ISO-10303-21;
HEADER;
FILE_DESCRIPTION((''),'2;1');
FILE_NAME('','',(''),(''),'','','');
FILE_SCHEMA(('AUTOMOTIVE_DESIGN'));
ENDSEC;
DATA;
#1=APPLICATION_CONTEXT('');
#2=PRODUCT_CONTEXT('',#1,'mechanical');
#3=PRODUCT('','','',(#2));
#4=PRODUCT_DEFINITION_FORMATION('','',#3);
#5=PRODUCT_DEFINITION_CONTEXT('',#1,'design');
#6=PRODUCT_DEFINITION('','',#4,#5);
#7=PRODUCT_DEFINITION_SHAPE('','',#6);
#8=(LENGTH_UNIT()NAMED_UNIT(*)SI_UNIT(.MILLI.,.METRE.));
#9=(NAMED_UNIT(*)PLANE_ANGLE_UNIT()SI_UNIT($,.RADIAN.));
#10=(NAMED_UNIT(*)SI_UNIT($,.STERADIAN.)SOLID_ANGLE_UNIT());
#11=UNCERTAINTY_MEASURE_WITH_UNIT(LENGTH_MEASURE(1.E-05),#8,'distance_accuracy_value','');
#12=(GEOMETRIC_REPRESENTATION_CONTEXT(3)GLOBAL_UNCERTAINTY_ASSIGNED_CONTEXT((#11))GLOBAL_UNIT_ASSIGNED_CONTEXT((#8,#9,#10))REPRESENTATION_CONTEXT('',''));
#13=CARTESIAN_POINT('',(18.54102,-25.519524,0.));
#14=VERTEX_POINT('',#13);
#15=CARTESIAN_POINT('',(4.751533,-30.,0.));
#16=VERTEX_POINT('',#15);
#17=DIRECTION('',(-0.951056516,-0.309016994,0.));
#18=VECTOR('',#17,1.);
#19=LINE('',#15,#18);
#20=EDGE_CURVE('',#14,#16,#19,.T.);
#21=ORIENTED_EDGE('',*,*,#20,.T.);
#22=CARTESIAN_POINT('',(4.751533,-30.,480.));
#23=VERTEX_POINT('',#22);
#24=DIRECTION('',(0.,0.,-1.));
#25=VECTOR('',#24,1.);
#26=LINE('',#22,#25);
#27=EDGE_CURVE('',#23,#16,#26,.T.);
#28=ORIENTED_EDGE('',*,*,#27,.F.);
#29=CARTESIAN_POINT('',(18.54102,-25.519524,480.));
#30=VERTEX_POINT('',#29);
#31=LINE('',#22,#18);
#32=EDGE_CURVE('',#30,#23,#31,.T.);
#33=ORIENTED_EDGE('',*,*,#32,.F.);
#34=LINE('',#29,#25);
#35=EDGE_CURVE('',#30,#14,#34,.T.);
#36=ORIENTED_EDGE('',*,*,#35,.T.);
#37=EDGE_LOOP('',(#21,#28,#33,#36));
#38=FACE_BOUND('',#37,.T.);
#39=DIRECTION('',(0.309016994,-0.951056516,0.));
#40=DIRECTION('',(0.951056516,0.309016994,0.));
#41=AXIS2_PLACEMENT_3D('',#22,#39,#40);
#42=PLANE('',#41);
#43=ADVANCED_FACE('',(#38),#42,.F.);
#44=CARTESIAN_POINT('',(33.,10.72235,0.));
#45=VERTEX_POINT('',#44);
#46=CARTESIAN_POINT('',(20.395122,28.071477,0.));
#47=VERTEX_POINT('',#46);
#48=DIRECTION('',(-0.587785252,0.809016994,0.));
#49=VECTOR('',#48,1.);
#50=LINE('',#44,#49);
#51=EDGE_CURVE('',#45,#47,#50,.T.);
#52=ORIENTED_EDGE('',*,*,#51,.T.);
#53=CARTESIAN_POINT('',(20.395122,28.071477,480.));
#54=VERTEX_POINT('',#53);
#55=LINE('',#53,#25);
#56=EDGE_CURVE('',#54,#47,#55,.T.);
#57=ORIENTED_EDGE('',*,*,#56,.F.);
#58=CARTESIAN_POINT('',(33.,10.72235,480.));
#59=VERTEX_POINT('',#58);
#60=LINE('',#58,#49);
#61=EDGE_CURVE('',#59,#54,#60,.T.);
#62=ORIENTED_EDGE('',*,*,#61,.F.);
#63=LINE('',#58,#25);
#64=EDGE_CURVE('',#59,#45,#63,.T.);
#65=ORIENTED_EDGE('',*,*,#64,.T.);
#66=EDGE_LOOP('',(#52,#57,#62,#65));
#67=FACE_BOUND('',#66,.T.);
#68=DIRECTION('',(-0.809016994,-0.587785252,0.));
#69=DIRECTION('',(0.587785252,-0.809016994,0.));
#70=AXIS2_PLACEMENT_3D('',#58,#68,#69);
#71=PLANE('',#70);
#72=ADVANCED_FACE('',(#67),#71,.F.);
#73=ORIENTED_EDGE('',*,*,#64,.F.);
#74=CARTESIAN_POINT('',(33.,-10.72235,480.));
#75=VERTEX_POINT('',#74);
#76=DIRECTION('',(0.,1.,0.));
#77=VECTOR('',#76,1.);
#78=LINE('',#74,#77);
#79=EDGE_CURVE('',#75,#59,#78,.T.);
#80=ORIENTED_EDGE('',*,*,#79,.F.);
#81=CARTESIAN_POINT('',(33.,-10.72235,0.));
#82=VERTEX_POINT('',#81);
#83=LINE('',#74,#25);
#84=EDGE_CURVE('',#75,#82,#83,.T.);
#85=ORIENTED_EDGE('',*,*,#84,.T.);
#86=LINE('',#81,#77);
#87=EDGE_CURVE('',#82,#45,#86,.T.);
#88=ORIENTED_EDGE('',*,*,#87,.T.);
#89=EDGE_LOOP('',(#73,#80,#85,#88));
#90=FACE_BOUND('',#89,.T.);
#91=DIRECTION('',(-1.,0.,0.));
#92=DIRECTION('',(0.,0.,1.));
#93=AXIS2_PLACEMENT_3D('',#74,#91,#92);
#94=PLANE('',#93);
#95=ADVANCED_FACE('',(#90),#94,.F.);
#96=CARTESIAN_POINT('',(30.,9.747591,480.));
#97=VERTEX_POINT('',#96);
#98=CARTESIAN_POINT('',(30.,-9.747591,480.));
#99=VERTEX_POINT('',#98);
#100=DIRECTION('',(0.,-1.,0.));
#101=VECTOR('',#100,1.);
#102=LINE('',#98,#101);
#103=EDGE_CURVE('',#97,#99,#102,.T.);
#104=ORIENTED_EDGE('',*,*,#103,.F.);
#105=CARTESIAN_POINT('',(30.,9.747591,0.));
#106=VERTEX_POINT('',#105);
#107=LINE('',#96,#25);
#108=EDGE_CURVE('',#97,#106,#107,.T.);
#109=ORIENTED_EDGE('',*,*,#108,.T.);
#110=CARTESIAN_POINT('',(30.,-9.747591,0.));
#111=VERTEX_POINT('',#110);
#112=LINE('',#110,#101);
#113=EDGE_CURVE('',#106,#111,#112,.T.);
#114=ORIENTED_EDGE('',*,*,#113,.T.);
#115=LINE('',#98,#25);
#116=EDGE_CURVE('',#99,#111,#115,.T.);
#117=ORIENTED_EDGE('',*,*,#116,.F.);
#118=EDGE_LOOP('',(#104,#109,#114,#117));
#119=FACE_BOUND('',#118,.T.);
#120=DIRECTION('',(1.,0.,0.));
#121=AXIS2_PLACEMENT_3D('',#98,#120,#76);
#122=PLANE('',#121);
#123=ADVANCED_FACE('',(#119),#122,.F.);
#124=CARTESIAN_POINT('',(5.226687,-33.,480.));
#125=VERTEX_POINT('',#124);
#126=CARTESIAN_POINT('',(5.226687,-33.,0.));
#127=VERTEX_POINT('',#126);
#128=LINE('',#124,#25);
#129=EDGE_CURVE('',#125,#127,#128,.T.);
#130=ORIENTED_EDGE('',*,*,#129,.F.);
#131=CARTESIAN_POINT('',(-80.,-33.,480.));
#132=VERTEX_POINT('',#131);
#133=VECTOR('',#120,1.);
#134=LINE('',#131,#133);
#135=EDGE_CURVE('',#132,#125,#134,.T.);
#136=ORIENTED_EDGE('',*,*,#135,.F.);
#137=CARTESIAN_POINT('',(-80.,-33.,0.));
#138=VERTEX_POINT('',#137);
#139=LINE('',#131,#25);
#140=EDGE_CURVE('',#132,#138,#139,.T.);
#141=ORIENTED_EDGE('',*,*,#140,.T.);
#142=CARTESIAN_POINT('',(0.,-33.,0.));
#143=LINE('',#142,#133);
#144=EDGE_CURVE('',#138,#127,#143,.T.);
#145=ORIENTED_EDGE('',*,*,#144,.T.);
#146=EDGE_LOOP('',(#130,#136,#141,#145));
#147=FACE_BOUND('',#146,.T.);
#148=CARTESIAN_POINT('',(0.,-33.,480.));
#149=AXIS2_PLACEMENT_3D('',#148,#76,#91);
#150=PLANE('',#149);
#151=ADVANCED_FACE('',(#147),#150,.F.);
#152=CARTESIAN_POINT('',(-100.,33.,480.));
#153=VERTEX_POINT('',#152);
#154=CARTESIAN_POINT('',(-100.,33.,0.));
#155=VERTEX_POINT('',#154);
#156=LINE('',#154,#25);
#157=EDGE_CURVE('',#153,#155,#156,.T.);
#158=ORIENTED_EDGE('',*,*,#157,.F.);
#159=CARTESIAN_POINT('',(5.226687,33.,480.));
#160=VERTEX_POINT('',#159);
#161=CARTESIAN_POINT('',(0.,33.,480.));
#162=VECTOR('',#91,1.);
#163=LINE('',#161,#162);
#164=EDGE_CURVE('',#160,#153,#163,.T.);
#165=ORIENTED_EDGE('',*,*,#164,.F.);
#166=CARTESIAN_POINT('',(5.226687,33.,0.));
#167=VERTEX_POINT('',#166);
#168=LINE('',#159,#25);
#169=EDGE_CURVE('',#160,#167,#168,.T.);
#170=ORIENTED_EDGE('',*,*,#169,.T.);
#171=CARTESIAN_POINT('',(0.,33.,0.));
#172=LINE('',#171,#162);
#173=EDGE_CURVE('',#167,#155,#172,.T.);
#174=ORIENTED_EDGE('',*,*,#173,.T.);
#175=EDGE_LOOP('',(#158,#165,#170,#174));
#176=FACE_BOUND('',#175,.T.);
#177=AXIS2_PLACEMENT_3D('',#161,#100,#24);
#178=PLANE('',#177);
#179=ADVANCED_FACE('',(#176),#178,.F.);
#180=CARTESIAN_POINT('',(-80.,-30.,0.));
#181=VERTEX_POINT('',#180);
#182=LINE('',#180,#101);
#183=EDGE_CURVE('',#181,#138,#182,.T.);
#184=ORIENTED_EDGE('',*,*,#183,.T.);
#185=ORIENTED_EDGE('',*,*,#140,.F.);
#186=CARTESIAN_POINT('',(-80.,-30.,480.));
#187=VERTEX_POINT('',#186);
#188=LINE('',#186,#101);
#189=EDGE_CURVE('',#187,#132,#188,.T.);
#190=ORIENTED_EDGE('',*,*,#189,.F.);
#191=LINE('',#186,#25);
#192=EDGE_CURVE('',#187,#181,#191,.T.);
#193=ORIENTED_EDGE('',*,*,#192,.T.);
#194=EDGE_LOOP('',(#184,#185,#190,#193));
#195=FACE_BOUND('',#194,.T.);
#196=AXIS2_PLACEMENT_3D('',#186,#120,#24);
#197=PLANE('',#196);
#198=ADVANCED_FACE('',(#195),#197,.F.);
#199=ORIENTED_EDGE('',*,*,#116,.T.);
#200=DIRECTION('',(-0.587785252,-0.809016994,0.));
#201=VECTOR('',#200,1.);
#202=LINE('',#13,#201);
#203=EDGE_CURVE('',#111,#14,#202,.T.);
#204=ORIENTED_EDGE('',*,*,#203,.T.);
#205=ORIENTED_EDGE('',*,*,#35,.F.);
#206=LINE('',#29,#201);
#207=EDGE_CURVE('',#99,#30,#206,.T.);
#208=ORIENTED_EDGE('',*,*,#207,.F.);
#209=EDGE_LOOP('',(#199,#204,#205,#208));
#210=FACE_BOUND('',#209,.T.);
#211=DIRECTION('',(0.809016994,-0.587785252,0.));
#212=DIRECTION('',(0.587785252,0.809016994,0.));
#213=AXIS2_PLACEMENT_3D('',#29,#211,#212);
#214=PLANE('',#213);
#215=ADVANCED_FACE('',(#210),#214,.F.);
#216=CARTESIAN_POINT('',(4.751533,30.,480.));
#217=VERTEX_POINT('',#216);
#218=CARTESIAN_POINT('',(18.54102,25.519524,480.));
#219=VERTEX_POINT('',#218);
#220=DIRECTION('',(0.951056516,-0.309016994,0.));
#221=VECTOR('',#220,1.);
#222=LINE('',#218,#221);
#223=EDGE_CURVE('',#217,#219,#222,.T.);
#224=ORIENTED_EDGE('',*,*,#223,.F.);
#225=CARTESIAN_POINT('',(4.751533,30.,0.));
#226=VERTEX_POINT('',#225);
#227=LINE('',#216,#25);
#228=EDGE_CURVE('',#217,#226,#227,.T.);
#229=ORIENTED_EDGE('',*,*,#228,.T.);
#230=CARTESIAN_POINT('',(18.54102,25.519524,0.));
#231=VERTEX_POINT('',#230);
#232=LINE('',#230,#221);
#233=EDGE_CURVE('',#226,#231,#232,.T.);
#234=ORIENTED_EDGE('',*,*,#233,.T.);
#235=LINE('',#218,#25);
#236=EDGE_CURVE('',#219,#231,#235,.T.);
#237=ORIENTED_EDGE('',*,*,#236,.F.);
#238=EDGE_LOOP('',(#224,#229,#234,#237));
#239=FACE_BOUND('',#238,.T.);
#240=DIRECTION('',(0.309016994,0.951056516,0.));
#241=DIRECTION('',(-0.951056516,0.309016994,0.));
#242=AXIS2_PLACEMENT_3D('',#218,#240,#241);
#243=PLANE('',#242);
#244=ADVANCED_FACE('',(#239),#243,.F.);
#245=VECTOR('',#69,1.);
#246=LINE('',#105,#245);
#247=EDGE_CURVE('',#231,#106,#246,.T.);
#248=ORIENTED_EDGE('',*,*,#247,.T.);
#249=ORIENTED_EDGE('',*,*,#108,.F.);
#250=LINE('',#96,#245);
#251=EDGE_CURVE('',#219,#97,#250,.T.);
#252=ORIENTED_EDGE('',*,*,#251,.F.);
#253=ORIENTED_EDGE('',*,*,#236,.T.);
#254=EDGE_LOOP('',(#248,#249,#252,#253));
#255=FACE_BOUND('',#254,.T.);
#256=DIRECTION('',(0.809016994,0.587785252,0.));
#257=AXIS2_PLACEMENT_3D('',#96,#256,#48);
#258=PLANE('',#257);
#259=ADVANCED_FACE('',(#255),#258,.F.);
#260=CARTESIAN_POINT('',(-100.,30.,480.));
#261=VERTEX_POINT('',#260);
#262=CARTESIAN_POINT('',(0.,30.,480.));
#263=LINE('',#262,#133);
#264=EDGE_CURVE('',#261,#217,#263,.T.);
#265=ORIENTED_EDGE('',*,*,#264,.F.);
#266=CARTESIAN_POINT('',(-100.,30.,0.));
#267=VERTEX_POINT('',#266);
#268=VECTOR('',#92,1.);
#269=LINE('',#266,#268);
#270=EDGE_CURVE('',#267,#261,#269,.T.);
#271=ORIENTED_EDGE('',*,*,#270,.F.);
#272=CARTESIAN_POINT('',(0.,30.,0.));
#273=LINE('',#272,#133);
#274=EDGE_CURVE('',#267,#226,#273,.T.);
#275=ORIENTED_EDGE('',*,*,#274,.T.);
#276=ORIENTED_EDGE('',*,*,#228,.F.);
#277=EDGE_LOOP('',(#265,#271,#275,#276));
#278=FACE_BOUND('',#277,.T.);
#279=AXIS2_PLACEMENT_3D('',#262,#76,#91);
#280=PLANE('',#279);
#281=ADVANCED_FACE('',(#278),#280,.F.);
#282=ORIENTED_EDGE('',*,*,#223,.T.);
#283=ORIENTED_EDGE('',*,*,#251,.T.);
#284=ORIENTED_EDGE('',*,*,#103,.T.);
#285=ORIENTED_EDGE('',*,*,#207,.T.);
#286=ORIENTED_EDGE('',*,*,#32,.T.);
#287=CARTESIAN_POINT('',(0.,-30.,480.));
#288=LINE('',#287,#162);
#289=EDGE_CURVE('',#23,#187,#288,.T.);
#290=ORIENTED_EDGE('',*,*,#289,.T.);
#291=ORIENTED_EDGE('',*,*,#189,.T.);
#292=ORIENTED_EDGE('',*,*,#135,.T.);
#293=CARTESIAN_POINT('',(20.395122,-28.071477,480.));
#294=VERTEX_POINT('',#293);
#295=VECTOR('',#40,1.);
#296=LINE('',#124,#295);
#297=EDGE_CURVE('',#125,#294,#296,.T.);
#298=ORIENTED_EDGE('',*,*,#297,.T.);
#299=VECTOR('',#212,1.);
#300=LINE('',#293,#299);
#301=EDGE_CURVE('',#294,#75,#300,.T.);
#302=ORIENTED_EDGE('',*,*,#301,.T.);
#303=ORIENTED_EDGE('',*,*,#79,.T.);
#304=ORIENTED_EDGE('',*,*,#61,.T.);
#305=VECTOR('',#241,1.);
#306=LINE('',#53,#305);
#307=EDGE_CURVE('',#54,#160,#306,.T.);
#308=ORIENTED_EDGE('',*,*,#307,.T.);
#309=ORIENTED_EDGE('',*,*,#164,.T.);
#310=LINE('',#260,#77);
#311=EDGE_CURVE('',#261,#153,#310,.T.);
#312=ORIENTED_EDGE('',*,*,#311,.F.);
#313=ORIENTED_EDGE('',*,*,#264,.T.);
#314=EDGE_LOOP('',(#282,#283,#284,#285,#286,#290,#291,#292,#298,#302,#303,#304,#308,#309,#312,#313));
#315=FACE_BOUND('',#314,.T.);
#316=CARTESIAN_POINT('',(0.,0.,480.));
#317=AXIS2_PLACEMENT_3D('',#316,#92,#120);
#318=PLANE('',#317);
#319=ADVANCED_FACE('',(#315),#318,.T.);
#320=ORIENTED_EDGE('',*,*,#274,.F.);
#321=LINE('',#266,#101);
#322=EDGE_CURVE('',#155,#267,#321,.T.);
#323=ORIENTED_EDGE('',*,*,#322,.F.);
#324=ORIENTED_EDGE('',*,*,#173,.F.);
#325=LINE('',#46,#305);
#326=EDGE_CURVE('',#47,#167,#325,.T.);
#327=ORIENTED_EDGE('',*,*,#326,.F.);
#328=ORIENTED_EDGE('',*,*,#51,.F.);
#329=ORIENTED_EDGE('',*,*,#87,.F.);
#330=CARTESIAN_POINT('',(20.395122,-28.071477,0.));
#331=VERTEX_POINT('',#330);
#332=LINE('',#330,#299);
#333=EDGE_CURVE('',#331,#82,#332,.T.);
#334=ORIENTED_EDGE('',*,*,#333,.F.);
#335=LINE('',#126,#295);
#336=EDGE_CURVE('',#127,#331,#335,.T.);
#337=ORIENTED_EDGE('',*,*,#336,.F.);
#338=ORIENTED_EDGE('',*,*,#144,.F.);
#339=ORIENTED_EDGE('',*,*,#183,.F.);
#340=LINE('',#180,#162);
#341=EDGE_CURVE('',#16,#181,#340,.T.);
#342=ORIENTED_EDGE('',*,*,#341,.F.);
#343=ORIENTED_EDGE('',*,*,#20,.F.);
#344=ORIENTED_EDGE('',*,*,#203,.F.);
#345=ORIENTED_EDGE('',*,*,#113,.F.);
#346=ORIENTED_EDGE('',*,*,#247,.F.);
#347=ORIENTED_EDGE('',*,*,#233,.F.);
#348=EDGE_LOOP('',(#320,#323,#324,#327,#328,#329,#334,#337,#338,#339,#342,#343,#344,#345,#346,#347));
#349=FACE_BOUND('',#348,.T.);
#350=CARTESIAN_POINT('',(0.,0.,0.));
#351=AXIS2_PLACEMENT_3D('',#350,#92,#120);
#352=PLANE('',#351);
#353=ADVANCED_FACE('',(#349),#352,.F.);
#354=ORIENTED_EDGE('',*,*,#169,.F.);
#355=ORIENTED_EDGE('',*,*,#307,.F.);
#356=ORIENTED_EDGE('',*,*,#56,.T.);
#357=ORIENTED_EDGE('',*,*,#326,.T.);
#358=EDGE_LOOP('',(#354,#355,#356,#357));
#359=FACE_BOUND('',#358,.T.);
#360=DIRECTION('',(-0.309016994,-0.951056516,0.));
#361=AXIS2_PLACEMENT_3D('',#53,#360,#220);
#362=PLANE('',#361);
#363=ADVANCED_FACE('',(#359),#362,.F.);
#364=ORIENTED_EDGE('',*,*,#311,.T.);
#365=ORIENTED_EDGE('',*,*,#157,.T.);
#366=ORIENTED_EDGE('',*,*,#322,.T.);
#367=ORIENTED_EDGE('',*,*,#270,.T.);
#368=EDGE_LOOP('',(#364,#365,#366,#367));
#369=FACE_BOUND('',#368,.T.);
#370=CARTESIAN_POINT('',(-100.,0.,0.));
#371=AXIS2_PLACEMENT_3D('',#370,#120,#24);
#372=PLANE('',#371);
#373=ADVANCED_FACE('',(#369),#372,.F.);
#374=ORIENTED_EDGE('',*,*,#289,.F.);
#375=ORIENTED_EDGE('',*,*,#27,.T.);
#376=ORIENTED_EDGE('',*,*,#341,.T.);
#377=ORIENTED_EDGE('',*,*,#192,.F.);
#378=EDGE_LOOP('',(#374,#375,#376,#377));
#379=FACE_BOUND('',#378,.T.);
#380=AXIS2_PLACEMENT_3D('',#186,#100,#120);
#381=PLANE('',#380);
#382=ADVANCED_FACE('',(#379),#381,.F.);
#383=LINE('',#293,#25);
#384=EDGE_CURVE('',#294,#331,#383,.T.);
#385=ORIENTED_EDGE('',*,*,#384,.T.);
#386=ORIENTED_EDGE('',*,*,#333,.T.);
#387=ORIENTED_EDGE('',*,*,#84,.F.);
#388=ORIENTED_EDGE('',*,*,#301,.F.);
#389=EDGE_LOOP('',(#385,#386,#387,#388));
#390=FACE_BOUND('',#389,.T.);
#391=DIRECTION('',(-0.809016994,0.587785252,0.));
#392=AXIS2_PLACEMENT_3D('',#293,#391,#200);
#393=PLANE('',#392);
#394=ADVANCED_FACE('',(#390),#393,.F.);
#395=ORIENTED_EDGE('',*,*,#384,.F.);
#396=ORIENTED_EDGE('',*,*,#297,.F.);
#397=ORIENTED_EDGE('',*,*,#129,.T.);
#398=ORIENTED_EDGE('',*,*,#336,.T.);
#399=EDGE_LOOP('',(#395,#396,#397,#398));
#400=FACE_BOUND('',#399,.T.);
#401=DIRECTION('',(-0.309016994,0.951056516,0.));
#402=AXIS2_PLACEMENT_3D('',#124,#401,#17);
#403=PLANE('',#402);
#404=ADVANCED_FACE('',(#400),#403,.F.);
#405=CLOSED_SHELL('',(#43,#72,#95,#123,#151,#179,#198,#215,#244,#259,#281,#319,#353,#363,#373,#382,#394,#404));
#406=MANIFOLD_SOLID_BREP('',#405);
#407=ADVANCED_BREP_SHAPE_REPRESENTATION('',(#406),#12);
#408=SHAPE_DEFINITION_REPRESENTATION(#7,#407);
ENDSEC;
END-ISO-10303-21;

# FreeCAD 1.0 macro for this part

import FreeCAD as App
import Part
import Sketcher
from FreeCAD import Vector
Q = App.Units.Quantity

doc = App.newDocument("Part")
body = doc.addObject("PartDesign::Body", "Body")

# Sketch on XY plane
sketch1 = body.newObject("Sketcher::SketchObject", "Sketch")
sketch1.AttachmentSupport = (doc.getObject("XY_Plane"), [""])
sketch1.MapMode = "FlatFace"
sketch1.addGeometry(Part.LineSegment(Vector(-80, 30, 0), Vector(4.8, 30, 0)), False)
sketch1.addGeometry(Part.LineSegment(Vector(4.8, 30, 0), Vector(18.5, 25.5, 0)), False)
sketch1.addGeometry(Part.LineSegment(Vector(18.5, 25.5, 0), Vector(30, 9.7, 0)), False)
sketch1.addGeometry(Part.LineSegment(Vector(30, 9.7, 0), Vector(30, -9.7, 0)), False)
sketch1.addGeometry(Part.LineSegment(Vector(30, -9.7, 0), Vector(18.5, -25.5, 0)), False)
sketch1.addGeometry(Part.LineSegment(Vector(18.5, -25.5, 0), Vector(4.8, -30, 0)), False)
sketch1.addGeometry(Part.LineSegment(Vector(4.8, -30, 0), Vector(-80, -30, 0)), False)
sketch1.addGeometry(Part.LineSegment(Vector(-80, -30, 0), Vector(-80, -33, 0)), False)
sketch1.addGeometry(Part.LineSegment(Vector(-80, -33, 0), Vector(5.2, -33, 0)), False)
sketch1.addGeometry(Part.LineSegment(Vector(5.2, -33, 0), Vector(20.4, -28.1, 0)), False)
sketch1.addGeometry(Part.LineSegment(Vector(20.4, -28.1, 0), Vector(33, -10.7, 0)), False)
sketch1.addGeometry(Part.LineSegment(Vector(33, -10.7, 0), Vector(33, 10.7, 0)), False)
sketch1.addGeometry(Part.LineSegment(Vector(33, 10.7, 0), Vector(20.4, 28.1, 0)), False)
sketch1.addGeometry(Part.LineSegment(Vector(20.4, 28.1, 0), Vector(5.2, 33, 0)), False)
sketch1.addGeometry(Part.LineSegment(Vector(5.2, 33, 0), Vector(-80, 33, 0)), False)
sketch1.addGeometry(Part.LineSegment(Vector(-80, 33, 0), Vector(-80, 30, 0)), False)
sketch1.addConstraint(Sketcher.Constraint("Coincident", 0, 2, 1, 1))
sketch1.addConstraint(Sketcher.Constraint("Coincident", 1, 2, 2, 1))
sketch1.addConstraint(Sketcher.Constraint("Coincident", 2, 2, 3, 1))
sketch1.addConstraint(Sketcher.Constraint("Coincident", 3, 2, 4, 1))
sketch1.addConstraint(Sketcher.Constraint("Coincident", 4, 2, 5, 1))
sketch1.addConstraint(Sketcher.Constraint("Coincident", 5, 2, 6, 1))
sketch1.addConstraint(Sketcher.Constraint("Coincident", 6, 2, 7, 1))
sketch1.addConstraint(Sketcher.Constraint("Coincident", 7, 2, 8, 1))
sketch1.addConstraint(Sketcher.Constraint("Coincident", 8, 2, 9, 1))
sketch1.addConstraint(Sketcher.Constraint("Coincident", 9, 2, 10, 1))
sketch1.addConstraint(Sketcher.Constraint("Coincident", 10, 2, 11, 1))
sketch1.addConstraint(Sketcher.Constraint("Coincident", 11, 2, 12, 1))
sketch1.addConstraint(Sketcher.Constraint("Coincident", 12, 2, 13, 1))
sketch1.addConstraint(Sketcher.Constraint("Coincident", 13, 2, 14, 1))
sketch1.addConstraint(Sketcher.Constraint("Coincident", 14, 2, 15, 1))
sketch1.addConstraint(Sketcher.Constraint("Coincident", 15, 2, 0, 1))
sketch1.addConstraint(Sketcher.Constraint("Horizontal", 0))
sketch1.addConstraint(Sketcher.Constraint("Vertical", 3))
sketch1.addConstraint(Sketcher.Constraint("Horizontal", 6))
sketch1.addConstraint(Sketcher.Constraint("Vertical", 7))
sketch1.addConstraint(Sketcher.Constraint("Horizontal", 8))
sketch1.addConstraint(Sketcher.Constraint("Vertical", 11))
sketch1.addConstraint(Sketcher.Constraint("Horizontal", 14))
sketch1.addConstraint(Sketcher.Constraint("Vertical", 15))
sketch1.addConstraint(Sketcher.Constraint("Symmetric", 1, 2, 4, 2, -1))
sketch1.addConstraint(Sketcher.Constraint("Symmetric", 0, 2, 5, 2, -1))
sketch1.addConstraint(Sketcher.Constraint("Symmetric", 9, 2, 12, 2, -1))
sketch1.addConstraint(Sketcher.Constraint("Symmetric", 8, 2, 13, 2, -1))
sketch1.addConstraint(Sketcher.Constraint("Parallel", 5, 9))
sketch1.addConstraint(Sketcher.Constraint("Parallel", 4, 10))
sketch1.addConstraint(Sketcher.Constraint("Parallel", 2, 12))
sketch1.addConstraint(Sketcher.Constraint("Vertical", 7, 2, 14, 2))
sketch1.addConstraint(Sketcher.Constraint("Equal", 2, 4))
sketch1.addConstraint(Sketcher.Constraint("DistanceY", 7, 2, 7, 1, 3.0))
sketch1.addConstraint(Sketcher.Constraint("Angle", 1, Q("-18 deg")))
sketch1.addConstraint(Sketcher.Constraint("Angle", 2, Q("-54 deg")))
sketch1.addConstraint(Sketcher.Constraint("DistanceY", -1, 1, 0, 2, 30.0))
sketch1.addConstraint(Sketcher.Constraint("DistanceX", -1, 1, 2, 2, 30.0))
sketch1.addConstraint(Sketcher.Constraint("DistanceX", 6, 2, -1, 1, 80.0))
sketch1.addConstraint(Sketcher.Constraint("DistanceX", -1, 1, 10, 2, 33.0))
sketch1.addConstraint(Sketcher.Constraint("DistanceY", 11, 1, 11, 2, 21.4447))
sketch1.addConstraint(Sketcher.Constraint("Distance", 10, 21.4447))
sketch1.addConstraint(Sketcher.Constraint("DistanceY", 3, 2, 3, 1, 19.495182))
sketch1.addConstraint(Sketcher.Constraint("DistanceX", 4, 2, 9, 2, 1.854102))
pad1 = body.newObject("PartDesign::Pad", "Pad")
pad1.Profile = sketch1
pad1.Length = 480

# Sketch on YZ plane
sketch2 = body.newObject("Sketcher::SketchObject", "Sketch001")
sketch2.AttachmentSupport = (doc.getObject("YZ_Plane"), [""])
sketch2.MapMode = "FlatFace"
sketch2.AttachmentOffset = App.Placement(Vector(0, 0, -80), App.Rotation())
sketch2.addGeometry(Part.LineSegment(Vector(33, 0, 0), Vector(30, 0, 0)), False)
sketch2.addGeometry(Part.LineSegment(Vector(30, 0, 0), Vector(30, 480, 0)), False)
sketch2.addGeometry(Part.LineSegment(Vector(30, 480, 0), Vector(33, 480, 0)), False)
sketch2.addGeometry(Part.LineSegment(Vector(33, 480, 0), Vector(33, 0, 0)), False)
sketch2.addConstraint(Sketcher.Constraint("Coincident", 0, 2, 1, 1))
sketch2.addConstraint(Sketcher.Constraint("Coincident", 1, 2, 2, 1))
sketch2.addConstraint(Sketcher.Constraint("Coincident", 2, 2, 3, 1))
sketch2.addConstraint(Sketcher.Constraint("Coincident", 3, 2, 0, 1))
sketch2.addConstraint(Sketcher.Constraint("Horizontal", 0))
sketch2.addConstraint(Sketcher.Constraint("Vertical", 1))
sketch2.addConstraint(Sketcher.Constraint("Horizontal", 2))
sketch2.addConstraint(Sketcher.Constraint("Vertical", 3))
sketch2.addConstraint(Sketcher.Constraint("PointOnObject", 0, 2, -1))
sketch2.addConstraint(Sketcher.Constraint("DistanceX", 0, 2, 0, 1, 3.0))
sketch2.addConstraint(Sketcher.Constraint("DistanceY", 1, 1, 1, 2, 480.0))
sketch2.addConstraint(Sketcher.Constraint("DistanceX", -1, 1, 0, 2, 30.0))
pad2 = body.newObject("PartDesign::Pad", "Pad001")
pad2.Profile = sketch2
pad2.Length = 20
pad2.Reversed = True

doc.recompute()
